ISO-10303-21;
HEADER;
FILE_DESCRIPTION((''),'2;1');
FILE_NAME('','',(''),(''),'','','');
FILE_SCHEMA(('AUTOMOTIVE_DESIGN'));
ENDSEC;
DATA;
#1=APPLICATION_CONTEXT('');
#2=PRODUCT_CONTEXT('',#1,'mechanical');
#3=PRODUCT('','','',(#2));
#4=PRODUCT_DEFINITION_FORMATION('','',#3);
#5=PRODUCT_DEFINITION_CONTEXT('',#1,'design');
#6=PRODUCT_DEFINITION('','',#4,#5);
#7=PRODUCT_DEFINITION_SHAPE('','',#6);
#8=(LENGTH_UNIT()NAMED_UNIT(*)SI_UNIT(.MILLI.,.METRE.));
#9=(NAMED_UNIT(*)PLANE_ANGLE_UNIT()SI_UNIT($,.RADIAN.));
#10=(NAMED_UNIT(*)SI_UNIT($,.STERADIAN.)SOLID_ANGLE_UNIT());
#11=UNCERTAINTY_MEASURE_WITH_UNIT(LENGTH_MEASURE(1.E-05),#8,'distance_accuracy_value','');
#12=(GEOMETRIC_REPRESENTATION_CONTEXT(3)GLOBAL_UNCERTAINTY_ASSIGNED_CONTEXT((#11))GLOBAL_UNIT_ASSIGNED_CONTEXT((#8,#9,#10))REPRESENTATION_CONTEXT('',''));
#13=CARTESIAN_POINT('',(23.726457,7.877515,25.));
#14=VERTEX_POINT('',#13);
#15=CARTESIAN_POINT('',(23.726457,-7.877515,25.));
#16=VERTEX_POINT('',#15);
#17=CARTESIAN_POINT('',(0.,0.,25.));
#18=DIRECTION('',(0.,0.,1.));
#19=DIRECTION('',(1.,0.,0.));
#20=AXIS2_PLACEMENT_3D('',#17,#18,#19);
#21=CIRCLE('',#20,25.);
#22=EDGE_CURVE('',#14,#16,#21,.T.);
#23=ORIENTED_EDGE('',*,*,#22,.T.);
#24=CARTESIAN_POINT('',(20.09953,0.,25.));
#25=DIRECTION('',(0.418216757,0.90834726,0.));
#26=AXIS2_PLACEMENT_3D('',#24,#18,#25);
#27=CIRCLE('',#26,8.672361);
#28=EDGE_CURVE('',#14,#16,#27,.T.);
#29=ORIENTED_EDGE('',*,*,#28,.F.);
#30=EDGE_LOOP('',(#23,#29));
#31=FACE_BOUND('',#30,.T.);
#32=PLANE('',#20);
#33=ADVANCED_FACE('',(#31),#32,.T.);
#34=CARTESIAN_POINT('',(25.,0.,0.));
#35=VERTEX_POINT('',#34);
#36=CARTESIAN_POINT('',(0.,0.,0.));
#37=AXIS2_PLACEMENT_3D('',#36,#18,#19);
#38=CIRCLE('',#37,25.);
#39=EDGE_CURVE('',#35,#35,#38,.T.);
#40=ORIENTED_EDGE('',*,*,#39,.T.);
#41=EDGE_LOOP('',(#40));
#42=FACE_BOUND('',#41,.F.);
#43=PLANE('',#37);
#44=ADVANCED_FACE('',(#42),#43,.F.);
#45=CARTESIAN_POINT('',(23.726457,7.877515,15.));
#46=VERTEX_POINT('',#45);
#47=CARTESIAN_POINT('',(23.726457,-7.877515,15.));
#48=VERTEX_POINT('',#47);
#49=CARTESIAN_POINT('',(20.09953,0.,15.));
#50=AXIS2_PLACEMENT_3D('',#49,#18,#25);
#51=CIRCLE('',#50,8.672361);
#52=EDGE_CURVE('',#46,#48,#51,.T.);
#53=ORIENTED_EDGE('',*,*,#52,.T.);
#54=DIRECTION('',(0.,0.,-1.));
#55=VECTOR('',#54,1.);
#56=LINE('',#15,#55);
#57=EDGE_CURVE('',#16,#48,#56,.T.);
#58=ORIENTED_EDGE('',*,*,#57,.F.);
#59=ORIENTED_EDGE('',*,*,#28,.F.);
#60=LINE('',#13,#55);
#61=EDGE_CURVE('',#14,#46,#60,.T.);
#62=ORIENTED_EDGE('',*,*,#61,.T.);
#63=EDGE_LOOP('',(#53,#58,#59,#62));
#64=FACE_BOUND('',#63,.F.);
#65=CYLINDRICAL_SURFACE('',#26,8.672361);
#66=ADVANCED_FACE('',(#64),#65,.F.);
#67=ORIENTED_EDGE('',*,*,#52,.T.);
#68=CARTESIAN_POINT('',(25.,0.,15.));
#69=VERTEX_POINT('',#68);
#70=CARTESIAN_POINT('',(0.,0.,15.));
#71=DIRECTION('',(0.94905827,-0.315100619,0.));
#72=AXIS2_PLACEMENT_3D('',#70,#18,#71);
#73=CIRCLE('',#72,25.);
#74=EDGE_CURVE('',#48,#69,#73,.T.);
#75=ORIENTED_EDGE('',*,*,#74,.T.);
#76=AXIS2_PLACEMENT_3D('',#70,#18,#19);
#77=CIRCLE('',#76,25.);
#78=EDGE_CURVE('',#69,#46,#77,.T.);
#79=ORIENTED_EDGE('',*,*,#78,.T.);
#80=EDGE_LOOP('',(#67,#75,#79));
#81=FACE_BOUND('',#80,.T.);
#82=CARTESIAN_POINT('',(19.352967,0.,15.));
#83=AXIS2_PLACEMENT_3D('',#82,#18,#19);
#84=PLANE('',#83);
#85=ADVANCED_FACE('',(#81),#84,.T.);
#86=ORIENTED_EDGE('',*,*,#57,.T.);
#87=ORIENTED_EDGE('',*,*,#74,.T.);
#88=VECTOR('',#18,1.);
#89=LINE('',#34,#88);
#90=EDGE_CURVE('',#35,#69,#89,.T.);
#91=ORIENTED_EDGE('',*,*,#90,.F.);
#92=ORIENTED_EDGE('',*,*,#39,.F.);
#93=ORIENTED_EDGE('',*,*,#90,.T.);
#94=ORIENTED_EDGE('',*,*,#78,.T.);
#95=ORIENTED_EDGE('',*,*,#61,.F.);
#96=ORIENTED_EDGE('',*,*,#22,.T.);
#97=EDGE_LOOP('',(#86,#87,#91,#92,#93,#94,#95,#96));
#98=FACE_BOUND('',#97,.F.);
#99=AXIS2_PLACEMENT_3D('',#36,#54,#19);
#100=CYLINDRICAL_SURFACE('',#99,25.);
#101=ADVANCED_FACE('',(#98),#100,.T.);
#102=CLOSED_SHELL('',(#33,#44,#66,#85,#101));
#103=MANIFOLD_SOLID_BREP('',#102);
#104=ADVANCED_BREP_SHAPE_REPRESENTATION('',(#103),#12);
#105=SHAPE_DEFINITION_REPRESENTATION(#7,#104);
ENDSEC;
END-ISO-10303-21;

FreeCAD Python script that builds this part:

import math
import FreeCAD as App
import Part
import Sketcher

V = App.Vector
Q = App.Units.Quantity

doc = App.newDocument("Part")
params = doc.addObject("Spreadsheet::Sheet", "Params")
for row, (alias, value) in enumerate([
    ("sketch1_diameter", "50 mm"),
    ("pad1_length", "25 mm"),
    ("sketch2_radius", "25 mm"),
    ("pocket1_length", "10 mm"),
], start=1):
    params.set(f"A{row}", alias)
    params.set(f"B{row}", "=" + value)
    params.setAlias(f"B{row}", alias)

body = doc.addObject("PartDesign::Body", "Body")

sketch1 = doc.addObject("Sketcher::SketchObject", "Sketch")
body.addObject(sketch1)
sketch1.AttachmentSupport = (doc.XY_Plane, [""])
sketch1.MapMode = "FlatFace"
sketch1.addGeometry(Part.Circle(V(0, 0, 0), V(0, 0, 1), 25), False)
sketch1.addConstraint([
    Sketcher.Constraint("Coincident", 0, 3, -1, 1),
    Sketcher.Constraint("Diameter", 0, Q("50 mm")),
])
sketch1.setExpression("Constraints[1]", "Params.sketch1_diameter")
pad1 = doc.addObject("PartDesign::Pad", "Pad")
body.addObject(pad1)
pad1.Profile = sketch1
pad1.setExpression("Length", "Params.pad1_length")

sketch2 = doc.addObject("Sketcher::SketchObject", "Sketch001")
body.addObject(sketch2)
sketch2.AttachmentSupport = (doc.XY_Plane, [""])
sketch2.MapMode = "FlatFace"
sketch2.AttachmentOffset = App.Placement(V(0, 0, 25), App.Rotation())
sketch2.addGeometry([
    Part.ArcOfCircle(Part.Circle(V(0, 0, 0), V(0, 0, 1), 25), math.radians(0), math.radians(18.37)),
    Part.ArcOfCircle(Part.Circle(V(20, 0, 0), V(0, 0, 1), 9), math.radians(65), math.radians(295)),
    Part.ArcOfCircle(Part.Circle(V(0, 0, 0), V(0, 0, 1), 25), math.radians(-18.37), math.radians(0)),
], False)
sketch2.addConstraint([
    Sketcher.Constraint("Coincident", 0, 2, 1, 1),
    Sketcher.Constraint("Coincident", 1, 2, 2, 1),
    Sketcher.Constraint("Tangent", 2, 2, 0, 1),
    Sketcher.Constraint("Coincident", 0, 3, -1, 1),
    Sketcher.Constraint("Equal", 0, 2),
    Sketcher.Constraint("PointOnObject", 1, 3, -1),
    Sketcher.Constraint("PointOnObject", 2, 2, -1),
    Sketcher.Constraint("Radius", 0, Q("25 mm")),
    Sketcher.Constraint("Radius", 1, Q("8.672361 mm")),
    Sketcher.Constraint("DistanceX", -1, 1, 1, 3, Q("20.09953 mm")),
])
sketch2.setExpression("Constraints[7]", "Params.sketch2_radius")
pocket1 = doc.addObject("PartDesign::Pocket", "Pocket")
body.addObject(pocket1)
pocket1.Profile = sketch2
pocket1.setExpression("Length", "Params.pocket1_length")

doc.recompute()
